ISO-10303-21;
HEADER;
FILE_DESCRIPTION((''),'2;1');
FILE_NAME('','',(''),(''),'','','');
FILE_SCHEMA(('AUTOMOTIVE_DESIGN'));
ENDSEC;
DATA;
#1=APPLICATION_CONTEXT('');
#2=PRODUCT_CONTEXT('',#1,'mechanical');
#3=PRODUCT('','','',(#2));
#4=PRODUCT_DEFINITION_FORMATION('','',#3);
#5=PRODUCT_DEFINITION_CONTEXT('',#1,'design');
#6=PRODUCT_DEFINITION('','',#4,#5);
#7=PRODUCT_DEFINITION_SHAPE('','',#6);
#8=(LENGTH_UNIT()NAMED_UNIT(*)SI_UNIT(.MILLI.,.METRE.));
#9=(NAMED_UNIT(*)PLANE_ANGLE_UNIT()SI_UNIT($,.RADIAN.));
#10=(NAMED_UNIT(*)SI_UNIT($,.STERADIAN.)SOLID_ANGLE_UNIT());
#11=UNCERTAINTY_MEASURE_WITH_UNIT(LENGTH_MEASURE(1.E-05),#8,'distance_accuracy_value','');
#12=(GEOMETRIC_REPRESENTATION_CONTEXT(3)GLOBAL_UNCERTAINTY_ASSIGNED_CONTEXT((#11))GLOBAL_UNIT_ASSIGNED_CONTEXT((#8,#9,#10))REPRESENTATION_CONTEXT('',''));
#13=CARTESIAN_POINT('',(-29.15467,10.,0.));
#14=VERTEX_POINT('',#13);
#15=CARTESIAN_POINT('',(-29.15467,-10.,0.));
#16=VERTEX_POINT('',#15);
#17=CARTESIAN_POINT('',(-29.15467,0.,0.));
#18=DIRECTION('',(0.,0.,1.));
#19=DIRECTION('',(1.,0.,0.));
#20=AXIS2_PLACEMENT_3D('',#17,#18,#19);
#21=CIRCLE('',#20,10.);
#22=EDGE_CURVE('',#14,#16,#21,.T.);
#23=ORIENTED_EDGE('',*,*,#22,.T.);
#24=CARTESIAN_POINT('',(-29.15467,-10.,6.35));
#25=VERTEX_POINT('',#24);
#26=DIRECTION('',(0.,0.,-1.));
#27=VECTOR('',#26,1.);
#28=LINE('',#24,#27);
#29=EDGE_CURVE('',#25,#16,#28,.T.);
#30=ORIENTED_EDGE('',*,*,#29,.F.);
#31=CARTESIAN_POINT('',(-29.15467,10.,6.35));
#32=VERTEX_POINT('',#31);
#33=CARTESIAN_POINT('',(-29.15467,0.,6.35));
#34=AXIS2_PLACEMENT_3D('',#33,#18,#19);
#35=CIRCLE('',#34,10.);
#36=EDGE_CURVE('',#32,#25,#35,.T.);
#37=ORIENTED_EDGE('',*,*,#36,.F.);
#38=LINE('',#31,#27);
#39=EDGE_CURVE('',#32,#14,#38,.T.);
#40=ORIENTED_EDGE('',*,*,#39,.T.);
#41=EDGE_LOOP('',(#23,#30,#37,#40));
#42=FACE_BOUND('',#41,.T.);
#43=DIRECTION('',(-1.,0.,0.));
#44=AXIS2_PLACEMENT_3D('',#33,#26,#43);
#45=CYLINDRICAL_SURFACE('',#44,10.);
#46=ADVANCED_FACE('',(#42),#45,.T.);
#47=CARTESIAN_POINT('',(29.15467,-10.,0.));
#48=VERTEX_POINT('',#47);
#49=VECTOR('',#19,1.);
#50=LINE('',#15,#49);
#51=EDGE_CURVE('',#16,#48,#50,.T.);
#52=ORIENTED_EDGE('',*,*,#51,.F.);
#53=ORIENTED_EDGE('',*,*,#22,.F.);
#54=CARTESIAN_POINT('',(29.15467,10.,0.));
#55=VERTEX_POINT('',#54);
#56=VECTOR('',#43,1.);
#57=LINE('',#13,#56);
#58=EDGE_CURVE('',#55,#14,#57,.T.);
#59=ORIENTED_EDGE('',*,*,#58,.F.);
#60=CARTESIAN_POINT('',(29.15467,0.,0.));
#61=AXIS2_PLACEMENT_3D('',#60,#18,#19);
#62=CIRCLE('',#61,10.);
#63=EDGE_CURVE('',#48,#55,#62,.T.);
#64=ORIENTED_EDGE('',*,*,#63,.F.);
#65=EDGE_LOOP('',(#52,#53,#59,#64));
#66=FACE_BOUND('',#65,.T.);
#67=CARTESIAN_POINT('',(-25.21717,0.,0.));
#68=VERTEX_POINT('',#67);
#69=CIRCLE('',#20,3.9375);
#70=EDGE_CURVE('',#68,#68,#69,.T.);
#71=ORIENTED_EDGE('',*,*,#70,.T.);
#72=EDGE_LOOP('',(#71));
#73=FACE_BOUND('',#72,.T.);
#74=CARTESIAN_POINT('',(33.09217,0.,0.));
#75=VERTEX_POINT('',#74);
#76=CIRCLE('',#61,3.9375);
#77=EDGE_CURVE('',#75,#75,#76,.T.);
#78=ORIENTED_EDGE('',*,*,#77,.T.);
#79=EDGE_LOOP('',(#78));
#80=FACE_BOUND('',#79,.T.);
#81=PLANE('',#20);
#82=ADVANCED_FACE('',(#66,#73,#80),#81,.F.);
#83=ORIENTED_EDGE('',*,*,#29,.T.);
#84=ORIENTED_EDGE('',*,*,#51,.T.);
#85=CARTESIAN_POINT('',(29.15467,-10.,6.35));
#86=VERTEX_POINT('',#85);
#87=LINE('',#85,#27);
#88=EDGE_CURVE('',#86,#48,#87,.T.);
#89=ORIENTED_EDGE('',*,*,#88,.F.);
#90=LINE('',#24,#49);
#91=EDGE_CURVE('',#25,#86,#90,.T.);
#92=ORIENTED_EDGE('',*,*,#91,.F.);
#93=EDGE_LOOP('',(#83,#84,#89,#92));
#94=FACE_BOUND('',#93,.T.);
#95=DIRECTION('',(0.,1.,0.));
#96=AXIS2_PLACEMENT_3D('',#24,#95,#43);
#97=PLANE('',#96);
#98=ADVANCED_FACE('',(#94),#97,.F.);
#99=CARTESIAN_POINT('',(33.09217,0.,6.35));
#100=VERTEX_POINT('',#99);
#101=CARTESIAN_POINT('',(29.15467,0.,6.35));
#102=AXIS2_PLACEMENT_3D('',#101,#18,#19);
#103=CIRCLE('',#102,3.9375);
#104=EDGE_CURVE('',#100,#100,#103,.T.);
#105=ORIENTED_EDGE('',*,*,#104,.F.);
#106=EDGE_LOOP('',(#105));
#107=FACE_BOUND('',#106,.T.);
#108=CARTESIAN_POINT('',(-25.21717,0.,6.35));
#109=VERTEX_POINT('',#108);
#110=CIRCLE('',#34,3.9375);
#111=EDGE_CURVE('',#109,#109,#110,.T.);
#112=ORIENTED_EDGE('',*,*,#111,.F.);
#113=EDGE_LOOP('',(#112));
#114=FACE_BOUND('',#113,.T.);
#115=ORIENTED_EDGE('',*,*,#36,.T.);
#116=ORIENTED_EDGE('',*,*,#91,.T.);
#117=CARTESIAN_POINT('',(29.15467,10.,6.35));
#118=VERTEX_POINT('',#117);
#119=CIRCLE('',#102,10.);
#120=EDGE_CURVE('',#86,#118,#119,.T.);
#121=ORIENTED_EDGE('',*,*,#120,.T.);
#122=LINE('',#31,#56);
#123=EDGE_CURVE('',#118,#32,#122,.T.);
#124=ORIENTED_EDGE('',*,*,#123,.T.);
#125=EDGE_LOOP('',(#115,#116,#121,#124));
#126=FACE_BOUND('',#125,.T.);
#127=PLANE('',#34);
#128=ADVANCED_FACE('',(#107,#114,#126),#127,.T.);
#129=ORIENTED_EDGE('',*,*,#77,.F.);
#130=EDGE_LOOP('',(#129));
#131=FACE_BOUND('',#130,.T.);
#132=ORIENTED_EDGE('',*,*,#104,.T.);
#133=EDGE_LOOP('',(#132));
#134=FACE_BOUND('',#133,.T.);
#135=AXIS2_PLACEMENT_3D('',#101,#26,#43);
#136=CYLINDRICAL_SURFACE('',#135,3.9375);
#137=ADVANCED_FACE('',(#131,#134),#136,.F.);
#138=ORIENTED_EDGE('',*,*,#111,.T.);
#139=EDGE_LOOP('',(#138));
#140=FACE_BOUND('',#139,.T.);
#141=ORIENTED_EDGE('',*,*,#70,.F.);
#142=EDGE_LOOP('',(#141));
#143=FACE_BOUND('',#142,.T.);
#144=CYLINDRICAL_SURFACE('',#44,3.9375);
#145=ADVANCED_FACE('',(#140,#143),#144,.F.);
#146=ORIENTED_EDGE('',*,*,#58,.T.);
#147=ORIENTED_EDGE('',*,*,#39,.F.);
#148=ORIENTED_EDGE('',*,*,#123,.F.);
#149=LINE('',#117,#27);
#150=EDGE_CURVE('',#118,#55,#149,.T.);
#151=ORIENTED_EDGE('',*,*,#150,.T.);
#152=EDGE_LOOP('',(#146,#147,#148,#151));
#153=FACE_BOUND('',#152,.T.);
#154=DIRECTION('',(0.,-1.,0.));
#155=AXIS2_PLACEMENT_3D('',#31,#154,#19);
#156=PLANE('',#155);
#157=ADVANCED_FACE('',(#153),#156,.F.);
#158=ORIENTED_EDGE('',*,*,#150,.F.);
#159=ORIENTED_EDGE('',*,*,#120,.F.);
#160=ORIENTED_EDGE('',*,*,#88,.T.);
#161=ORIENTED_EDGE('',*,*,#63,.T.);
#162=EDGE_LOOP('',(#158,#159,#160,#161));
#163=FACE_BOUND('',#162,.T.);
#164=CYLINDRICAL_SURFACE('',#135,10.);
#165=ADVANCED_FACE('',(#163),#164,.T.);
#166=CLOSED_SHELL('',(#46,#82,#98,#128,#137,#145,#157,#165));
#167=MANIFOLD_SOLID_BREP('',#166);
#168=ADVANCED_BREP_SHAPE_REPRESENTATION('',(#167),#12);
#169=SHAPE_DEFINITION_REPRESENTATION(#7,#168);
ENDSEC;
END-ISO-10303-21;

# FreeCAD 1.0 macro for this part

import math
import FreeCAD as App
import Part
import Sketcher

V = App.Vector
Q = App.Units.Quantity

doc = App.newDocument("Part")
body = doc.addObject("PartDesign::Body", "Body")

# Sketch on XY plane
sketch1 = body.newObject("Sketcher::SketchObject", "Sketch")
sketch1.AttachmentSupport = (doc.getObject("XY_Plane"), [""])
sketch1.MapMode = "FlatFace"
sketch1.addGeometry(Part.LineSegment(V(29.15467, 10, 0), V(-29.15467, 10, 0)), False)
sketch1.addGeometry(Part.ArcOfCircle(Part.Circle(V(-29.15467, 0, 0), V(0, 0, 1), 10), math.radians(90), math.radians(270)), False)
sketch1.addGeometry(Part.LineSegment(V(-29.15467, -10, 0), V(29.15467, -10, 0)), False)
sketch1.addGeometry(Part.ArcOfCircle(Part.Circle(V(29.15467, 0, 0), V(0, 0, 1), 10), math.radians(-90), math.radians(90)), False)
sketch1.addGeometry(Part.Circle(V(29.15467, 0, 0), V(0, 0, 1), 3.9375), False)
sketch1.addGeometry(Part.Circle(V(-29.15467, 0, 0), V(0, 0, 1), 3.9375), False)
sketch1.addConstraint(Sketcher.Constraint("Tangent", 0, 2, 1, 1))
sketch1.addConstraint(Sketcher.Constraint("Tangent", 1, 2, 2, 1))
sketch1.addConstraint(Sketcher.Constraint("Tangent", 2, 2, 3, 1))
sketch1.addConstraint(Sketcher.Constraint("Tangent", 3, 2, 0, 1))
sketch1.addConstraint(Sketcher.Constraint("Horizontal", 0))
sketch1.addConstraint(Sketcher.Constraint("Horizontal", 2))
sketch1.addConstraint(Sketcher.Constraint("Coincident", 4, 3, 3, 3))
sketch1.addConstraint(Sketcher.Constraint("Coincident", 5, 3, 1, 3))
sketch1.addConstraint(Sketcher.Constraint("Equal", 4, 5))
sketch1.addConstraint(Sketcher.Constraint("Symmetric", 1, 3, 3, 3, -1, 1))
sketch1.addConstraint(Sketcher.Constraint("Radius", 1, Q("10 mm")))
sketch1.addConstraint(Sketcher.Constraint("Diameter", 4, Q("7.875 mm")))
sketch1.addConstraint(Sketcher.Constraint("DistanceX", 0, 2, 0, 1, Q("58.309339 mm")))
pad1 = body.newObject("PartDesign::Pad", "Pad")
pad1.Profile = sketch1
pad1.Length = 6.35

doc.recompute()
